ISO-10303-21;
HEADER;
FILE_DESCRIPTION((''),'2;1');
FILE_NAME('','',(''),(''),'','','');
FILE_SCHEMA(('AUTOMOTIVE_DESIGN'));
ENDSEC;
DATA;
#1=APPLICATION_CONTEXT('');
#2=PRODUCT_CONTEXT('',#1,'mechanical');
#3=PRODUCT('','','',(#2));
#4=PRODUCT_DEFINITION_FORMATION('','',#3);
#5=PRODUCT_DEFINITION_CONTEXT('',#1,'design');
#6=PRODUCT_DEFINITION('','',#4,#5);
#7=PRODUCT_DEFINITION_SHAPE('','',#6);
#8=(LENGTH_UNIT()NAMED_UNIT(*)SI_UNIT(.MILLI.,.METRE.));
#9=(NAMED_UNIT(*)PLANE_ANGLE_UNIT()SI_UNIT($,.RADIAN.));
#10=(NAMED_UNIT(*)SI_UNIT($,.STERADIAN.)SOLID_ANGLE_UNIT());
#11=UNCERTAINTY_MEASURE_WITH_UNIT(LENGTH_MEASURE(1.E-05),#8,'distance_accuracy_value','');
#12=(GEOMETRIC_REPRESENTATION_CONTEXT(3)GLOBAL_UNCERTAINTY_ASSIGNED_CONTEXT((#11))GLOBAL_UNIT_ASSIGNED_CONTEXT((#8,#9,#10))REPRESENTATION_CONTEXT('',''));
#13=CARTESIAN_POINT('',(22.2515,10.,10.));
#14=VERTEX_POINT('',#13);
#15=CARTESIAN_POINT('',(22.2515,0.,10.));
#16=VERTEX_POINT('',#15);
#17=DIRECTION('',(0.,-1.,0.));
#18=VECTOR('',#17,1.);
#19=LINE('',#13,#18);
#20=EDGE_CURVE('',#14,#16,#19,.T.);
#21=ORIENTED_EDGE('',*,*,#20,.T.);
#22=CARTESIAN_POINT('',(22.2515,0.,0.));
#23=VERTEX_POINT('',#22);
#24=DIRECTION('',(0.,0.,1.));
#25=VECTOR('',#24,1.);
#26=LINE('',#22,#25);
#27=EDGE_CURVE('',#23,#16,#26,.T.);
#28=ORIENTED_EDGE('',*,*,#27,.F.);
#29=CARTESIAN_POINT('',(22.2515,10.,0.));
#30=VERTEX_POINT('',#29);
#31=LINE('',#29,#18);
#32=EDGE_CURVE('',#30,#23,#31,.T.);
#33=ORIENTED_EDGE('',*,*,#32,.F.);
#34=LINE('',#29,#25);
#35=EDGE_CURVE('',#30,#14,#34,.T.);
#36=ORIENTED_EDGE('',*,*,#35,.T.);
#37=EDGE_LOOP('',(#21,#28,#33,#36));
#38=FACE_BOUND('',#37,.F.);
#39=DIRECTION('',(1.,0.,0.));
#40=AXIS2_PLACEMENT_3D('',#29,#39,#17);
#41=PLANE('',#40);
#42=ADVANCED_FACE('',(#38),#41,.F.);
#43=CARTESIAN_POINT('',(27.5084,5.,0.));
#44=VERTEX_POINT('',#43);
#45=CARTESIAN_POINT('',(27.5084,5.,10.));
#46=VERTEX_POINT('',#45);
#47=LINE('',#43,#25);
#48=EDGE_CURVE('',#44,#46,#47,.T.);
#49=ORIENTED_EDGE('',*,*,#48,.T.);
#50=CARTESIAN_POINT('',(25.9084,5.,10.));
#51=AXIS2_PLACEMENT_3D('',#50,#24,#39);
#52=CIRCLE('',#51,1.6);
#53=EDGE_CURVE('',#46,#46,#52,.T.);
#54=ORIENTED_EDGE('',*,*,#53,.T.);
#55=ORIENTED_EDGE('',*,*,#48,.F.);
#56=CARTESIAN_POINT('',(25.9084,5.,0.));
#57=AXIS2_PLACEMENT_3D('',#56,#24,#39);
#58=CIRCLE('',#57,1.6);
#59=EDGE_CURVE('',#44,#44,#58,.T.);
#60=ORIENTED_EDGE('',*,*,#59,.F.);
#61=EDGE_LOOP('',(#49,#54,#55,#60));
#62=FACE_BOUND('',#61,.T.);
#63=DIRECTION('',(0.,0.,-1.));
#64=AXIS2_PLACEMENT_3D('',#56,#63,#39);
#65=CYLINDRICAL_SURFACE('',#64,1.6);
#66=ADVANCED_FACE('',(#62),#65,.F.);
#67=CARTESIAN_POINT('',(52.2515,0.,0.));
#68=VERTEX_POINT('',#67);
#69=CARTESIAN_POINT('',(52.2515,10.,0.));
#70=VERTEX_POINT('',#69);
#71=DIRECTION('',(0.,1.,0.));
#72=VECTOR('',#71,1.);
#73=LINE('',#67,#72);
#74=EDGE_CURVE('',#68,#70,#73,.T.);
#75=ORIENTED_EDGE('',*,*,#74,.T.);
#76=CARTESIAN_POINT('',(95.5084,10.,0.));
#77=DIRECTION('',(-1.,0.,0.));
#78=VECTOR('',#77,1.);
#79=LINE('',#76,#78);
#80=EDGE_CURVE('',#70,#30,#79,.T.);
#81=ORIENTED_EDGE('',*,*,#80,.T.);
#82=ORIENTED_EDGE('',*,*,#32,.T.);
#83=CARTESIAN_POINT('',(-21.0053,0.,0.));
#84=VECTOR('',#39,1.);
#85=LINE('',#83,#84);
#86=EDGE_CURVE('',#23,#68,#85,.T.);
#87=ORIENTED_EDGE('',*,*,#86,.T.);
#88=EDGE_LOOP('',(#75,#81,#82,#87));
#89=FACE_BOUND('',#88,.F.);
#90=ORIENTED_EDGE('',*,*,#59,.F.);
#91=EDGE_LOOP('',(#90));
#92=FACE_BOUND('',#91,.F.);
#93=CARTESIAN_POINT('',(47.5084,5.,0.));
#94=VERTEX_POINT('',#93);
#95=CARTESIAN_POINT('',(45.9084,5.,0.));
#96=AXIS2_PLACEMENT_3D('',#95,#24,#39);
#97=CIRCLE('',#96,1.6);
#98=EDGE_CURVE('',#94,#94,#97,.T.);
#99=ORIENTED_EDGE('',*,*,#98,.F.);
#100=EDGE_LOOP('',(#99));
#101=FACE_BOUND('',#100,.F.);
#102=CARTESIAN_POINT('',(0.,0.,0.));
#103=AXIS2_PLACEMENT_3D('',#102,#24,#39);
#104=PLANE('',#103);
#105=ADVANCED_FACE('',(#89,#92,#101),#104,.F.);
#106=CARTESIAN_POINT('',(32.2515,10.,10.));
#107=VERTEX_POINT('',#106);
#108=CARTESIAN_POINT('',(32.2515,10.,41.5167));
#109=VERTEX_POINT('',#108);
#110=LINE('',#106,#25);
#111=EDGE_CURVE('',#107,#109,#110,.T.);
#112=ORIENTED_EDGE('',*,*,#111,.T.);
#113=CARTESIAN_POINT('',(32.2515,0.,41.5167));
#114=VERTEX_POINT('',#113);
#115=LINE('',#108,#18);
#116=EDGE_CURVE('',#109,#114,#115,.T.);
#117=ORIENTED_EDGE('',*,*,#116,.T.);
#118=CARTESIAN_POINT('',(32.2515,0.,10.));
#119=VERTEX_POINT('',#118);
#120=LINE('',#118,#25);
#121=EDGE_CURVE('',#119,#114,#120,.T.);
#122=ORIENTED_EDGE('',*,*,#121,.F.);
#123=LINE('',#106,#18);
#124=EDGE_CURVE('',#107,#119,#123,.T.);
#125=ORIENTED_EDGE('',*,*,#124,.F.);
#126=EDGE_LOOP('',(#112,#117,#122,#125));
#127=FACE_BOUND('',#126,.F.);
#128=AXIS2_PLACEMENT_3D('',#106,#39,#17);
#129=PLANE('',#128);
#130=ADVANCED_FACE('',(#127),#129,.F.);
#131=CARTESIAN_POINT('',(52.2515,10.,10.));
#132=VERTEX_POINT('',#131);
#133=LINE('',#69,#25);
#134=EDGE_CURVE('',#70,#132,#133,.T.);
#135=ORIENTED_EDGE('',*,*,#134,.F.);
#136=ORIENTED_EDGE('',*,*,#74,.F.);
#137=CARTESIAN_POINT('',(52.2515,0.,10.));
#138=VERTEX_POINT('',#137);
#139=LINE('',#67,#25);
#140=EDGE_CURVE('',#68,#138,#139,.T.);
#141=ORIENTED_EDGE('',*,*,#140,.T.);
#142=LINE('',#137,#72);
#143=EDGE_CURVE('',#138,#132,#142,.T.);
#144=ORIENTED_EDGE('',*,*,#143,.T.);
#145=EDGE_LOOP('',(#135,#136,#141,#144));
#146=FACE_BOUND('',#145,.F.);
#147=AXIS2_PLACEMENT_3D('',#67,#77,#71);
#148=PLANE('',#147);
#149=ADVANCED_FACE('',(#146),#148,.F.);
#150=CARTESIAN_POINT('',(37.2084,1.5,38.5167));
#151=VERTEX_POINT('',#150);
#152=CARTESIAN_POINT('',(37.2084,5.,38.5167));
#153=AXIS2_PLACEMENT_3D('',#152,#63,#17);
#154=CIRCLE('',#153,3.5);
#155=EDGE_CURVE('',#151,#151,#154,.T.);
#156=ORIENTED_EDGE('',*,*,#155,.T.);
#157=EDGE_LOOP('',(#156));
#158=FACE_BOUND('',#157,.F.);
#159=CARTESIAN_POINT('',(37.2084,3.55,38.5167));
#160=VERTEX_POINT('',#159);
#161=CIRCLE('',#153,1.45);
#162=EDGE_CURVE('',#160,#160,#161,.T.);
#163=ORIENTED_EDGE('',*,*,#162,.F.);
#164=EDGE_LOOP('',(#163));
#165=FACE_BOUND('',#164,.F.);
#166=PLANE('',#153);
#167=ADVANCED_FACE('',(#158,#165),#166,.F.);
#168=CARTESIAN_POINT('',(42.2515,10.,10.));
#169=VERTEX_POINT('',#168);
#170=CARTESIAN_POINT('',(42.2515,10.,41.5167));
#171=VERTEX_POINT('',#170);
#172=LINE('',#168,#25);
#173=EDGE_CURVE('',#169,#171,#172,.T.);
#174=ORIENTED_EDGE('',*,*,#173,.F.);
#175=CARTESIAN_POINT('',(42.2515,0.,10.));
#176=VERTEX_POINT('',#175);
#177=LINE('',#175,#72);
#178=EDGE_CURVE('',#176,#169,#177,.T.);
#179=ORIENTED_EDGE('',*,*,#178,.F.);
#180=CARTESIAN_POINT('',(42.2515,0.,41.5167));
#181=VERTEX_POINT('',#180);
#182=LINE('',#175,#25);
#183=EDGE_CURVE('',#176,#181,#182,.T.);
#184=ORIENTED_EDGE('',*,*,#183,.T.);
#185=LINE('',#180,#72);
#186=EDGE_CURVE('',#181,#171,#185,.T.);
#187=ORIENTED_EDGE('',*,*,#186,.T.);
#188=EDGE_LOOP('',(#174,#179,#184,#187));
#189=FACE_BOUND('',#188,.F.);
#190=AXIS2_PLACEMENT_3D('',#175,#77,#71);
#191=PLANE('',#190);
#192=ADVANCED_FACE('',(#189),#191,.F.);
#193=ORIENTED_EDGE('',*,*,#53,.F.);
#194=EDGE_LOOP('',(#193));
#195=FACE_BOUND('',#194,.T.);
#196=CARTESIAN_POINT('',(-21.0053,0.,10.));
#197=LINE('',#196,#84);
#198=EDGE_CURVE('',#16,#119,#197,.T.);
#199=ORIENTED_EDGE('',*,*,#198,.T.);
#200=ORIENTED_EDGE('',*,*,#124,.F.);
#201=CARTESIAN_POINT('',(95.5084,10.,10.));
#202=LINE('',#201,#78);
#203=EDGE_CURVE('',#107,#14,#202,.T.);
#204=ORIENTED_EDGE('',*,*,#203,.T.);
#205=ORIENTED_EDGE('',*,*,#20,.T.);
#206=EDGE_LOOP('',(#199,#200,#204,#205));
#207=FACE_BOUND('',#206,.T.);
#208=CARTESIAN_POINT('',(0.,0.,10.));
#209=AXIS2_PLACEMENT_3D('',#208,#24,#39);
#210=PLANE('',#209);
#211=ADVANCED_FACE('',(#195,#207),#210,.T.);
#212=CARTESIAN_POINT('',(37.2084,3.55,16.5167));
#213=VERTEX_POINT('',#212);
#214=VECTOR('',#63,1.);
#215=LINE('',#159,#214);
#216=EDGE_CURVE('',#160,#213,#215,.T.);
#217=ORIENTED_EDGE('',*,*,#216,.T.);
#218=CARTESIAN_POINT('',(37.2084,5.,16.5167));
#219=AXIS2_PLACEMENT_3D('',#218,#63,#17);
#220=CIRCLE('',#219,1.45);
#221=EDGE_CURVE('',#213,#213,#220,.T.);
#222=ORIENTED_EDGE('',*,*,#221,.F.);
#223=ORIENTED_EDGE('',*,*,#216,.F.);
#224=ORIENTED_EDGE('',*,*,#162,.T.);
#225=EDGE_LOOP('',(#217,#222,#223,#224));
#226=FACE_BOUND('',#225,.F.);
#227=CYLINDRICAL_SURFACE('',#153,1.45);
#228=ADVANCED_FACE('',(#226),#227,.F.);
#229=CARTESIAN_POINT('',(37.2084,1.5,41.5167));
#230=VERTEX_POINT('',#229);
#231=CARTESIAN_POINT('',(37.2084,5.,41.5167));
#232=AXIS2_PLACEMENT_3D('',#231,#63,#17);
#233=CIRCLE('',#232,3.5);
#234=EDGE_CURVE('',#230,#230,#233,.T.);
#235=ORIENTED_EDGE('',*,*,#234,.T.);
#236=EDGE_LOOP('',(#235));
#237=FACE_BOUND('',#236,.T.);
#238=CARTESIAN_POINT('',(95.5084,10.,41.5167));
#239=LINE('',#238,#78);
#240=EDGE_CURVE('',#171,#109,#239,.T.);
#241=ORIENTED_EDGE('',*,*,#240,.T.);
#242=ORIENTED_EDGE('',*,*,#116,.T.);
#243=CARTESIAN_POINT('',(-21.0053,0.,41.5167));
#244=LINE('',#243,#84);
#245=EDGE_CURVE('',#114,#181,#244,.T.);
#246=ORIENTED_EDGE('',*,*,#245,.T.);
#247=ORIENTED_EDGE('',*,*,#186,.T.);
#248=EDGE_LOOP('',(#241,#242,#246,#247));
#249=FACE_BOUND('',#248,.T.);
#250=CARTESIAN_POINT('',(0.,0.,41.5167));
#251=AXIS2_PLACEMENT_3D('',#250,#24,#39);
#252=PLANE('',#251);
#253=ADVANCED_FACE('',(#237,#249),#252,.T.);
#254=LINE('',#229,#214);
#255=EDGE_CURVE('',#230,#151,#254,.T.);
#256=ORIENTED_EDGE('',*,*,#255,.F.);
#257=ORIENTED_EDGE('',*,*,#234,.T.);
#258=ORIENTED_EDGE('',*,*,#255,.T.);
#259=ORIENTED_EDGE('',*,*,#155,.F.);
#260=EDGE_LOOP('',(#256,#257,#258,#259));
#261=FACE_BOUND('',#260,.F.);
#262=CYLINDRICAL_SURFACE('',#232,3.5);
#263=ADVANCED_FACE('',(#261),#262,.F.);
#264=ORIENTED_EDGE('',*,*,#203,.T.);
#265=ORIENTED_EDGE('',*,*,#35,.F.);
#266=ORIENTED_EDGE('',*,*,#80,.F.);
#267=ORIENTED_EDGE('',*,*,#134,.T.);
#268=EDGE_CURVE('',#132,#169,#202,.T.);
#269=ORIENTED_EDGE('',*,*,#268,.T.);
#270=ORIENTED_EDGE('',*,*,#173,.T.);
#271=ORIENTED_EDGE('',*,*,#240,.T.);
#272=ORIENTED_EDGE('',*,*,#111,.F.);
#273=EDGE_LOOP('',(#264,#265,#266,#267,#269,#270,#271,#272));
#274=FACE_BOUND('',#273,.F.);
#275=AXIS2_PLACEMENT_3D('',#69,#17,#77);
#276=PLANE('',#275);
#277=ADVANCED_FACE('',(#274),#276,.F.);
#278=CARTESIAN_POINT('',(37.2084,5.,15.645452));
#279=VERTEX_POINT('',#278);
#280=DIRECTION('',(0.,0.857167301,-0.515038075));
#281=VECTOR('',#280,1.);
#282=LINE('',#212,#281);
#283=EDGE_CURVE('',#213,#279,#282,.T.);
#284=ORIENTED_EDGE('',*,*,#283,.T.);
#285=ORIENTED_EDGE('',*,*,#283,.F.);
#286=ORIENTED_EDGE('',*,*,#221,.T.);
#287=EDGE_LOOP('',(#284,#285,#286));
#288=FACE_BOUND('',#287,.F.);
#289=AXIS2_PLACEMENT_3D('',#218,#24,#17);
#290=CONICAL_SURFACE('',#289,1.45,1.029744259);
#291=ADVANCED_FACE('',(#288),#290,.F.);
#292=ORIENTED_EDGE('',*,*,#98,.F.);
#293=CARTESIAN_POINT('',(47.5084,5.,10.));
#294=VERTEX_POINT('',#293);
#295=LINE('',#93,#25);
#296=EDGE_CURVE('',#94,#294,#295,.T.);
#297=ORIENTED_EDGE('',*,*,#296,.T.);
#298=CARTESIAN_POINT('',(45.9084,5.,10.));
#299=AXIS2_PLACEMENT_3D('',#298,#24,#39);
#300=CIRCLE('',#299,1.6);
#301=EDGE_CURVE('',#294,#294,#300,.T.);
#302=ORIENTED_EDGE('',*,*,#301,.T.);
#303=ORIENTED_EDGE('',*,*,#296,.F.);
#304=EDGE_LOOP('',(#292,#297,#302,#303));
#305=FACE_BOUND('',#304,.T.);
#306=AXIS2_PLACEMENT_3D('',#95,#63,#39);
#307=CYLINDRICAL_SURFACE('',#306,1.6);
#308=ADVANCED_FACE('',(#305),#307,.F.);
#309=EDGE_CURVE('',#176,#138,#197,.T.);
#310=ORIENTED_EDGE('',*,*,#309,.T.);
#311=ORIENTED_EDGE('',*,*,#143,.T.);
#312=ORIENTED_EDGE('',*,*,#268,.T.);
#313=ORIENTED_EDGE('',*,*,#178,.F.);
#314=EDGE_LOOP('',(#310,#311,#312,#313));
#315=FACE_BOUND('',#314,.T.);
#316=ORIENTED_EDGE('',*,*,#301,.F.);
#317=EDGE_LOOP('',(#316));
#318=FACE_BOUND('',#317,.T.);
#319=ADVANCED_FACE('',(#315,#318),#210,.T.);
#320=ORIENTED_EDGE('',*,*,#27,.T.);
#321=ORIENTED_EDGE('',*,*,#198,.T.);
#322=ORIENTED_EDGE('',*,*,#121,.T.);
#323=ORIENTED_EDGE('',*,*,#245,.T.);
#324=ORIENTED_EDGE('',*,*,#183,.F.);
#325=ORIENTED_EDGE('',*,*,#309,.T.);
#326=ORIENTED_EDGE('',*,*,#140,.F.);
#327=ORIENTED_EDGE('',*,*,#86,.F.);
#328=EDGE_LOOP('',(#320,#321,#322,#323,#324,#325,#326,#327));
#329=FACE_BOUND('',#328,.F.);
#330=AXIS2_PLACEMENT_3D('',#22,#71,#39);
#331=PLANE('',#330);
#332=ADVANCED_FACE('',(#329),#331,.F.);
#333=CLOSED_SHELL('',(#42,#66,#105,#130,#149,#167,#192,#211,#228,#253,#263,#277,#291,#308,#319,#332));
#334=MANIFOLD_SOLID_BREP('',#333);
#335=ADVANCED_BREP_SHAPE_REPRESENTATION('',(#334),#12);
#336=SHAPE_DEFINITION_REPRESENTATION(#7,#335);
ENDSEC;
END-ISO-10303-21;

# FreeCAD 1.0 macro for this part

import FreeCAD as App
import Part
import Sketcher
Q = App.Units.Quantity


def add_polygon(sketch, points):
    """Adds a closed chain of lines whose ends are joined by coincident constraints."""
    first, n = sketch.GeometryCount, len(points)
    for a, b in zip(points, points[1:] + points[:1]):
        sketch.addGeometry(Part.LineSegment(App.Vector(*a, 0), App.Vector(*b, 0)), False)
    for i in range(n):
        sketch.addConstraint(Sketcher.Constraint("Coincident", first + i, 2, first + (i + 1) % n, 1))

doc = App.newDocument("Part")
params = doc.addObject("Spreadsheet::Sheet", "Params")
for row, (alias, value) in enumerate([
    ("sketch1_diameter", "3.2 mm"),
    ("sketch1_width", "30 mm"),
    ("sketch1_height", "10 mm"),
    ("pad1_length", "10 mm"),
    ("sketch2_width", "10 mm"),
    ("pad2_length", "31.5167 mm"),
    ("sketch3_diameter", "2.9 mm"),
    ("hole_diameter", "2.9 mm"),
    ("hole_depth", "25 mm"),
    ("hole_cbore_diameter", "7 mm"),
    ("hole_cbore_depth", "3 mm"),
], start=1):
    params.set(f"A{row}", alias)
    params.set(f"B{row}", "=" + value)
    params.setAlias(f"B{row}", alias)

body = doc.addObject("PartDesign::Body", "Body")

sketch1 = body.newObject("Sketcher::SketchObject", "Sketch")
sketch1.AttachmentSupport = (doc.getObject("XY_Plane"), [""])
sketch1.MapMode = "FlatFace"
add_polygon(sketch1, [(22.2515, 10), (22.2515, 0), (52.2515, 0), (52.2515, 10)])
sketch1.addGeometry(Part.Circle(App.Vector(25.9084, 5, 0), App.Vector(0, 0, 1), 1.6), False)
sketch1.addGeometry(Part.Circle(App.Vector(45.9084, 5, 0), App.Vector(0, 0, 1), 1.6), False)
sketch1.addConstraint(Sketcher.Constraint("Vertical", 0))
sketch1.addConstraint(Sketcher.Constraint("Horizontal", 1))
sketch1.addConstraint(Sketcher.Constraint("Vertical", 2))
sketch1.addConstraint(Sketcher.Constraint("Horizontal", 3))
sketch1.addConstraint(Sketcher.Constraint("Equal", 4, 5))
sketch1.addConstraint(Sketcher.Constraint("PointOnObject", 0, 2, -1))
sketch1.addConstraint(Sketcher.Constraint("Horizontal", 4, 3, 5, 3))
sketch1.addConstraint(Sketcher.Constraint("Diameter", 4, Q("3.2 mm")))
sketch1.addConstraint(Sketcher.Constraint("DistanceX", 1, 1, 1, 2, Q("30 mm")))
sketch1.addConstraint(Sketcher.Constraint("DistanceY", 0, 2, 0, 1, Q("10 mm")))
sketch1.addConstraint(Sketcher.Constraint("DistanceY", -1, 1, 4, 3, Q("5 mm")))
sketch1.addConstraint(Sketcher.Constraint("DistanceX", 4, 3, 5, 3, Q("20 mm")))
sketch1.addConstraint(Sketcher.Constraint("DistanceX", 0, 2, 4, 3, Q("3.657 mm")))
sketch1.addConstraint(Sketcher.Constraint("DistanceX", -1, 1, 4, 3, Q("25.9084 mm")))
sketch1.setExpression("Constraints[11]", "Params.sketch1_diameter")
sketch1.setExpression("Constraints[12]", "Params.sketch1_width")
sketch1.setExpression("Constraints[13]", "Params.sketch1_height")
pad1 = body.newObject("PartDesign::Pad", "Pad")
pad1.Profile = sketch1
pad1.setExpression("Length", "Params.pad1_length")

sketch2 = body.newObject("Sketcher::SketchObject", "Sketch001")
sketch2.AttachmentSupport = (doc.getObject("XY_Plane"), [""])
sketch2.MapMode = "FlatFace"
sketch2.AttachmentOffset = App.Placement(App.Vector(0, 0, 10), App.Rotation())
add_polygon(sketch2, [(42.2515, 0), (42.2515, 10), (32.2515, 10), (32.2515, 0)])
sketch2.addConstraint(Sketcher.Constraint("Vertical", 0))
sketch2.addConstraint(Sketcher.Constraint("Horizontal", 1))
sketch2.addConstraint(Sketcher.Constraint("Vertical", 2))
sketch2.addConstraint(Sketcher.Constraint("Horizontal", 3))
sketch2.addConstraint(Sketcher.Constraint("PointOnObject", 2, 2, -1))
sketch2.addConstraint(Sketcher.Constraint("Equal", 3, 0))
sketch2.addConstraint(Sketcher.Constraint("DistanceX", 1, 2, 1, 1, Q("10 mm")))
sketch2.addConstraint(Sketcher.Constraint("DistanceX", -1, 1, 0, 2, Q("42.2515 mm")))
sketch2.setExpression("Constraints[10]", "Params.sketch2_width")
pad2 = body.newObject("PartDesign::Pad", "Pad001")
pad2.Profile = sketch2
pad2.setExpression("Length", "Params.pad2_length")

sketch3 = body.newObject("Sketcher::SketchObject", "Sketch002")
sketch3.AttachmentSupport = (doc.getObject("XY_Plane"), [""])
sketch3.MapMode = "FlatFace"
sketch3.AttachmentOffset = App.Placement(App.Vector(0, 0, 41.5167), App.Rotation())
sketch3.addGeometry(Part.Circle(App.Vector(37.2084, 5, 0), App.Vector(0, 0, 1), 1.45), False)
sketch3.addConstraint(Sketcher.Constraint("Diameter", 0, Q("2.9 mm")))
sketch3.addConstraint(Sketcher.Constraint("DistanceY", -1, 1, 0, 3, Q("5 mm")))
sketch3.addConstraint(Sketcher.Constraint("DistanceX", -1, 1, 0, 3, Q("37.2084 mm")))
sketch3.setExpression("Constraints[0]", "Params.sketch3_diameter")
doc.recompute()
hole = body.newObject("PartDesign::Hole", "Hole")
hole.Profile = sketch3
hole.ThreadType = "None"
hole.setExpression("Diameter", "Params.hole_diameter")
hole.DepthType = "Dimension"
hole.setExpression("Depth", "Params.hole_depth")
hole.DrillPoint = "Angled"
hole.DrillPointAngle = 118
hole.HoleCutType = "Counterbore"
hole.setExpression("HoleCutDiameter", "Params.hole_cbore_diameter")
hole.setExpression("HoleCutDepth", "Params.hole_cbore_depth")

doc.recompute()
